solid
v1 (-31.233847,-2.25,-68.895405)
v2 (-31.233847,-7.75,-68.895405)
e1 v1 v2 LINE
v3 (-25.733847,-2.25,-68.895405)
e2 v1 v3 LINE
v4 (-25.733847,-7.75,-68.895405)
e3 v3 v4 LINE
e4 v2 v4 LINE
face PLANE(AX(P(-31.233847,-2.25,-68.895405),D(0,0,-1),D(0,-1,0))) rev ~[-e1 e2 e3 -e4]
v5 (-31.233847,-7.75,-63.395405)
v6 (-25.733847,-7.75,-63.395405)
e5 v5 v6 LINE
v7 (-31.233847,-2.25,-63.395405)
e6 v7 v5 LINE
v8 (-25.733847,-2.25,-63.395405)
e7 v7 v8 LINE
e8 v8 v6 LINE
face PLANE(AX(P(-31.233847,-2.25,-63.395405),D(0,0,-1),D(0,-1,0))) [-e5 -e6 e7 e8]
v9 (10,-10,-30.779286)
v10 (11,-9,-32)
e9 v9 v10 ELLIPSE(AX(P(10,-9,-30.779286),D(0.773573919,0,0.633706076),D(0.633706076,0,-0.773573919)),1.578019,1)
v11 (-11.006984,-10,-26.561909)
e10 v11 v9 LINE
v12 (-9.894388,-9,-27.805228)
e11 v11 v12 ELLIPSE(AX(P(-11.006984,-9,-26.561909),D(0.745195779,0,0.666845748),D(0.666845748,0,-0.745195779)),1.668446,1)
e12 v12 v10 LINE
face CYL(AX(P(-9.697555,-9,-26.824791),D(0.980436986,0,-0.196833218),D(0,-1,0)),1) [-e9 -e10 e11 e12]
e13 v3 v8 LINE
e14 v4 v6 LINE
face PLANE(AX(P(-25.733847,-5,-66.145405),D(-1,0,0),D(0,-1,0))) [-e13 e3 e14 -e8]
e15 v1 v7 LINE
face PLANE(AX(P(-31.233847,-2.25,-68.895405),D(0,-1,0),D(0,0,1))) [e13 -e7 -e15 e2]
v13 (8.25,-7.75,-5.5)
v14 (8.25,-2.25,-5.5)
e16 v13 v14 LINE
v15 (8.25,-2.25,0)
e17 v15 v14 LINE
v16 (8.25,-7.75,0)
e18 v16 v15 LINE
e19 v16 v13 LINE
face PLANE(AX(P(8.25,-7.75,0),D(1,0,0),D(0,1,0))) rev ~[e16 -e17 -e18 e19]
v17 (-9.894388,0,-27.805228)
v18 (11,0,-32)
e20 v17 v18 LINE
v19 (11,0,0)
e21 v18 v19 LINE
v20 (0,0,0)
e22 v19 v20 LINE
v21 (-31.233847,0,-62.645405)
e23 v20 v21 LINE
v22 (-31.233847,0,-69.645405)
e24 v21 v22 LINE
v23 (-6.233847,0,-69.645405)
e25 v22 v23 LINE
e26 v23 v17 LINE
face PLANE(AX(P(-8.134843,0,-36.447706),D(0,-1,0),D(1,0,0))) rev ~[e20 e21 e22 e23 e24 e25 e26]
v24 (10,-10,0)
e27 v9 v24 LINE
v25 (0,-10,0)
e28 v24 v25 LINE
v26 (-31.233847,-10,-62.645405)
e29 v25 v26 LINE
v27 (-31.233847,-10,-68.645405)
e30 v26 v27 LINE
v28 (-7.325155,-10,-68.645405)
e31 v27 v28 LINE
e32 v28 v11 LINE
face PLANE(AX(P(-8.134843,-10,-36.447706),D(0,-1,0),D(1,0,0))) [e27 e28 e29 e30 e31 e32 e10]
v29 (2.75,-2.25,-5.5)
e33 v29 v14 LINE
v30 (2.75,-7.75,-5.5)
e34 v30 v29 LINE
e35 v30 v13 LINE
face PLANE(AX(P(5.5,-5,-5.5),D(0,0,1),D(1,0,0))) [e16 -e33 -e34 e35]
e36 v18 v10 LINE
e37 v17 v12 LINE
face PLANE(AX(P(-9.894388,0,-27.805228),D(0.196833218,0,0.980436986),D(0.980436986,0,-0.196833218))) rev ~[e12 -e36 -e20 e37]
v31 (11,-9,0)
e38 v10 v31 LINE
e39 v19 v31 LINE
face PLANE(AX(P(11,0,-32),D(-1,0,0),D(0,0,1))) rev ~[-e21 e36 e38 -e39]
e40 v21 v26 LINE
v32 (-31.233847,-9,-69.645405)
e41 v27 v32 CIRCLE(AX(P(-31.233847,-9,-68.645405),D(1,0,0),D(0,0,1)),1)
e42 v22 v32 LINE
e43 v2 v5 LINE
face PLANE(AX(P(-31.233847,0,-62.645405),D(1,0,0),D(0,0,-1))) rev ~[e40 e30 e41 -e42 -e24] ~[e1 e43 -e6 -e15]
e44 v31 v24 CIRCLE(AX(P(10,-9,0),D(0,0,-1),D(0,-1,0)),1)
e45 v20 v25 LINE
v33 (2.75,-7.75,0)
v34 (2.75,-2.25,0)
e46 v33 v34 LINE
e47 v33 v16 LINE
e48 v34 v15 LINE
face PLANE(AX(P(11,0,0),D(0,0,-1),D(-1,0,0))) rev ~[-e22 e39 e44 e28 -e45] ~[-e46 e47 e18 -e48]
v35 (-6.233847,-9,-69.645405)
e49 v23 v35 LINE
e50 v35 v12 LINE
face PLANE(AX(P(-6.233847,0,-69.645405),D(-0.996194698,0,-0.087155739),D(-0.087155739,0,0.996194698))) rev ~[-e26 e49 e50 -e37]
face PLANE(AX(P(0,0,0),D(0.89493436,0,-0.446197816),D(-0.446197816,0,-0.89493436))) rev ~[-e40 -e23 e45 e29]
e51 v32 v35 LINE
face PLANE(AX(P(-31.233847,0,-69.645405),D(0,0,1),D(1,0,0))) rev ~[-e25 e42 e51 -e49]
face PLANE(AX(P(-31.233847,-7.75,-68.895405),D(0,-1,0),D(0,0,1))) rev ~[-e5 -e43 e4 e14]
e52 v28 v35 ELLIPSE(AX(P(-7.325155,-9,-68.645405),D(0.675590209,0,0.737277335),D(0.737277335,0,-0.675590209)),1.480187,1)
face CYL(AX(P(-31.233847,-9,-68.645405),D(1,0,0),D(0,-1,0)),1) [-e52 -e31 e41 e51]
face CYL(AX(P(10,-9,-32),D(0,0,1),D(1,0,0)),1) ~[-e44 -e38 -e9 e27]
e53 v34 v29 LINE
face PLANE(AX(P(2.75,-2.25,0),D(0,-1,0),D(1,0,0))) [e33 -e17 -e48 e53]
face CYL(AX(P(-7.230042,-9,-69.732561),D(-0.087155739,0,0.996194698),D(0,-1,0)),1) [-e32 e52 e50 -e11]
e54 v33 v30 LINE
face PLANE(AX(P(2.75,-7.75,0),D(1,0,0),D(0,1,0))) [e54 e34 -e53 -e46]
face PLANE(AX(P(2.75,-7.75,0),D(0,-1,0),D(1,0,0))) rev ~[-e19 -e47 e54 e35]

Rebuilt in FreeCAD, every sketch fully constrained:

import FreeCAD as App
import Part
import Sketcher

V = App.Vector
Q = App.Units.Quantity


def edges_at(feature, points):
    """Names of the edges that pass closest to the given points."""
    edges = feature.Shape.Edges
    near = lambda p: min(range(len(edges)), key=lambda i: edges[i].distToShape(Part.Vertex(*p))[0])
    return sorted({f"Edge{near(p) + 1}" for p in points})

doc = App.newDocument("Part")
body = doc.addObject("PartDesign::Body", "Body")

# Sketch on XZ plane
sketch1 = body.newObject("Sketcher::SketchObject", "Sketch")
sketch1.AttachmentSupport = (doc.getObject("XZ_Plane"), [""])
sketch1.MapMode = "FlatFace"
sketch1.addGeometry(Part.LineSegment(V(11, 0, 0), V(0, 0, 0)), False)
sketch1.addGeometry(Part.LineSegment(V(0, 0, 0), V(-31, -63, 0)), False)
sketch1.addGeometry(Part.LineSegment(V(-31, -63, 0), V(-31, -70, 0)), False)
sketch1.addGeometry(Part.LineSegment(V(-31, -70, 0), V(-6, -70, 0)), False)
sketch1.addGeometry(Part.LineSegment(V(-6, -70, 0), V(-10, -28, 0)), False)
sketch1.addGeometry(Part.LineSegment(V(-10, -28, 0), V(11, -32, 0)), False)
sketch1.addGeometry(Part.LineSegment(V(11, -32, 0), V(11, 0, 0)), False)
sketch1.addConstraint(Sketcher.Constraint("Coincident", 0, 2, 1, 1))
sketch1.addConstraint(Sketcher.Constraint("Coincident", 1, 2, 2, 1))
sketch1.addConstraint(Sketcher.Constraint("Coincident", 2, 2, 3, 1))
sketch1.addConstraint(Sketcher.Constraint("Coincident", 3, 2, 4, 1))
sketch1.addConstraint(Sketcher.Constraint("Coincident", 4, 2, 5, 1))
sketch1.addConstraint(Sketcher.Constraint("Coincident", 5, 2, 6, 1))
sketch1.addConstraint(Sketcher.Constraint("Coincident", 6, 2, 0, 1))
sketch1.addConstraint(Sketcher.Constraint("Horizontal", 0))
sketch1.addConstraint(Sketcher.Constraint("Vertical", 2))
sketch1.addConstraint(Sketcher.Constraint("Horizontal", 3))
sketch1.addConstraint(Sketcher.Constraint("Vertical", 6))
sketch1.addConstraint(Sketcher.Constraint("Coincident", 0, 2, -1, 1))
sketch1.addConstraint(Sketcher.Constraint("DistanceX", 0, 2, 0, 1, Q("11 mm")))
sketch1.addConstraint(Sketcher.Constraint("DistanceX", 3, 1, 3, 2, Q("25 mm")))
sketch1.addConstraint(Sketcher.Constraint("DistanceY", 2, 2, 2, 1, Q("7 mm")))
sketch1.addConstraint(Sketcher.Constraint("DistanceY", 6, 1, 6, 2, Q("32 mm")))
sketch1.addConstraint(Sketcher.Constraint("Angle", 4, Q("95 deg")))
sketch1.addConstraint(Sketcher.Constraint("Distance", 1, Q("70 mm")))
sketch1.addConstraint(Sketcher.Constraint("Distance", 4, Q("42 mm")))
sketch1.addConstraint(Sketcher.Constraint("Angle", 1, Q("-116.5 deg")))
pad1 = body.newObject("PartDesign::Pad", "Pad")
pad1.Profile = sketch1
pad1.Length = 10

# Sketch on YZ plane
sketch2 = body.newObject("Sketcher::SketchObject", "Sketch001")
sketch2.AttachmentSupport = (doc.getObject("YZ_Plane"), [""])
sketch2.MapMode = "FlatFace"
sketch2.AttachmentOffset = App.Placement(V(0, 0, -31.233847), App.Rotation())
sketch2.addGeometry(Part.LineSegment(V(-2, -63, 0), V(-2, -69, 0)), False)
sketch2.addGeometry(Part.LineSegment(V(-2, -69, 0), V(-8, -69, 0)), False)
sketch2.addGeometry(Part.LineSegment(V(-8, -69, 0), V(-8, -63, 0)), False)
sketch2.addGeometry(Part.LineSegment(V(-8, -63, 0), V(-2, -63, 0)), False)
sketch2.addConstraint(Sketcher.Constraint("Coincident", 0, 2, 1, 1))
sketch2.addConstraint(Sketcher.Constraint("Coincident", 1, 2, 2, 1))
sketch2.addConstraint(Sketcher.Constraint("Coincident", 2, 2, 3, 1))
sketch2.addConstraint(Sketcher.Constraint("Coincident", 3, 2, 0, 1))
sketch2.addConstraint(Sketcher.Constraint("Vertical", 0))
sketch2.addConstraint(Sketcher.Constraint("Horizontal", 1))
sketch2.addConstraint(Sketcher.Constraint("Vertical", 2))
sketch2.addConstraint(Sketcher.Constraint("Horizontal", 3))
sketch2.addConstraint(Sketcher.Constraint("Equal", 3, 0))
sketch2.addConstraint(Sketcher.Constraint("DistanceX", 1, 2, 1, 1, Q("5.5 mm")))
sketch2.addConstraint(Sketcher.Constraint("DistanceX", 0, 2, -1, 1, Q("2.25 mm")))
sketch2.addConstraint(Sketcher.Constraint("DistanceY", 0, 2, -1, 1, Q("68.895405 mm")))
pocket1 = body.newObject("PartDesign::Pocket", "Pocket")
pocket1.Profile = sketch2
pocket1.Length = 5.5
pocket1.Reversed = True

# Sketch on XY plane
sketch3 = body.newObject("Sketcher::SketchObject", "Sketch002")
sketch3.AttachmentSupport = (doc.getObject("XY_Plane"), [""])
sketch3.MapMode = "FlatFace"
sketch3.addGeometry(Part.LineSegment(V(3, -2, 0), V(3, -8, 0)), False)
sketch3.addGeometry(Part.LineSegment(V(3, -8, 0), V(8, -8, 0)), False)
sketch3.addGeometry(Part.LineSegment(V(8, -8, 0), V(8, -2, 0)), False)
sketch3.addGeometry(Part.LineSegment(V(8, -2, 0), V(3, -2, 0)), False)
sketch3.addConstraint(Sketcher.Constraint("Coincident", 0, 2, 1, 1))
sketch3.addConstraint(Sketcher.Constraint("Coincident", 1, 2, 2, 1))
sketch3.addConstraint(Sketcher.Constraint("Coincident", 2, 2, 3, 1))
sketch3.addConstraint(Sketcher.Constraint("Coincident", 3, 2, 0, 1))
sketch3.addConstraint(Sketcher.Constraint("Vertical", 0))
sketch3.addConstraint(Sketcher.Constraint("Horizontal", 1))
sketch3.addConstraint(Sketcher.Constraint("Vertical", 2))
sketch3.addConstraint(Sketcher.Constraint("Horizontal", 3))
sketch3.addConstraint(Sketcher.Constraint("Equal", 3, 0))
sketch3.addConstraint(Sketcher.Constraint("DistanceX", 1, 1, 1, 2, Q("5.5 mm")))
sketch3.addConstraint(Sketcher.Constraint("DistanceX", -1, 1, 0, 2, Q("2.75 mm")))
sketch3.addConstraint(Sketcher.Constraint("DistanceY", 0, 2, -1, 1, Q("7.75 mm")))
pocket2 = body.newObject("PartDesign::Pocket", "Pocket001")
pocket2.Profile = sketch3
pocket2.Length = 5.5
doc.recompute()

fillet = body.newObject("PartDesign::Fillet", "Fillet")
fillet.Base = (pocket2, edges_at(pocket2, [
    (0.553, -10, -29.903),
    (-18.734, -10, -69.645),
    (-8.064, -10, -48.725),
    (11, -10, -16),
]))
fillet.Radius = 1

doc.recompute()
